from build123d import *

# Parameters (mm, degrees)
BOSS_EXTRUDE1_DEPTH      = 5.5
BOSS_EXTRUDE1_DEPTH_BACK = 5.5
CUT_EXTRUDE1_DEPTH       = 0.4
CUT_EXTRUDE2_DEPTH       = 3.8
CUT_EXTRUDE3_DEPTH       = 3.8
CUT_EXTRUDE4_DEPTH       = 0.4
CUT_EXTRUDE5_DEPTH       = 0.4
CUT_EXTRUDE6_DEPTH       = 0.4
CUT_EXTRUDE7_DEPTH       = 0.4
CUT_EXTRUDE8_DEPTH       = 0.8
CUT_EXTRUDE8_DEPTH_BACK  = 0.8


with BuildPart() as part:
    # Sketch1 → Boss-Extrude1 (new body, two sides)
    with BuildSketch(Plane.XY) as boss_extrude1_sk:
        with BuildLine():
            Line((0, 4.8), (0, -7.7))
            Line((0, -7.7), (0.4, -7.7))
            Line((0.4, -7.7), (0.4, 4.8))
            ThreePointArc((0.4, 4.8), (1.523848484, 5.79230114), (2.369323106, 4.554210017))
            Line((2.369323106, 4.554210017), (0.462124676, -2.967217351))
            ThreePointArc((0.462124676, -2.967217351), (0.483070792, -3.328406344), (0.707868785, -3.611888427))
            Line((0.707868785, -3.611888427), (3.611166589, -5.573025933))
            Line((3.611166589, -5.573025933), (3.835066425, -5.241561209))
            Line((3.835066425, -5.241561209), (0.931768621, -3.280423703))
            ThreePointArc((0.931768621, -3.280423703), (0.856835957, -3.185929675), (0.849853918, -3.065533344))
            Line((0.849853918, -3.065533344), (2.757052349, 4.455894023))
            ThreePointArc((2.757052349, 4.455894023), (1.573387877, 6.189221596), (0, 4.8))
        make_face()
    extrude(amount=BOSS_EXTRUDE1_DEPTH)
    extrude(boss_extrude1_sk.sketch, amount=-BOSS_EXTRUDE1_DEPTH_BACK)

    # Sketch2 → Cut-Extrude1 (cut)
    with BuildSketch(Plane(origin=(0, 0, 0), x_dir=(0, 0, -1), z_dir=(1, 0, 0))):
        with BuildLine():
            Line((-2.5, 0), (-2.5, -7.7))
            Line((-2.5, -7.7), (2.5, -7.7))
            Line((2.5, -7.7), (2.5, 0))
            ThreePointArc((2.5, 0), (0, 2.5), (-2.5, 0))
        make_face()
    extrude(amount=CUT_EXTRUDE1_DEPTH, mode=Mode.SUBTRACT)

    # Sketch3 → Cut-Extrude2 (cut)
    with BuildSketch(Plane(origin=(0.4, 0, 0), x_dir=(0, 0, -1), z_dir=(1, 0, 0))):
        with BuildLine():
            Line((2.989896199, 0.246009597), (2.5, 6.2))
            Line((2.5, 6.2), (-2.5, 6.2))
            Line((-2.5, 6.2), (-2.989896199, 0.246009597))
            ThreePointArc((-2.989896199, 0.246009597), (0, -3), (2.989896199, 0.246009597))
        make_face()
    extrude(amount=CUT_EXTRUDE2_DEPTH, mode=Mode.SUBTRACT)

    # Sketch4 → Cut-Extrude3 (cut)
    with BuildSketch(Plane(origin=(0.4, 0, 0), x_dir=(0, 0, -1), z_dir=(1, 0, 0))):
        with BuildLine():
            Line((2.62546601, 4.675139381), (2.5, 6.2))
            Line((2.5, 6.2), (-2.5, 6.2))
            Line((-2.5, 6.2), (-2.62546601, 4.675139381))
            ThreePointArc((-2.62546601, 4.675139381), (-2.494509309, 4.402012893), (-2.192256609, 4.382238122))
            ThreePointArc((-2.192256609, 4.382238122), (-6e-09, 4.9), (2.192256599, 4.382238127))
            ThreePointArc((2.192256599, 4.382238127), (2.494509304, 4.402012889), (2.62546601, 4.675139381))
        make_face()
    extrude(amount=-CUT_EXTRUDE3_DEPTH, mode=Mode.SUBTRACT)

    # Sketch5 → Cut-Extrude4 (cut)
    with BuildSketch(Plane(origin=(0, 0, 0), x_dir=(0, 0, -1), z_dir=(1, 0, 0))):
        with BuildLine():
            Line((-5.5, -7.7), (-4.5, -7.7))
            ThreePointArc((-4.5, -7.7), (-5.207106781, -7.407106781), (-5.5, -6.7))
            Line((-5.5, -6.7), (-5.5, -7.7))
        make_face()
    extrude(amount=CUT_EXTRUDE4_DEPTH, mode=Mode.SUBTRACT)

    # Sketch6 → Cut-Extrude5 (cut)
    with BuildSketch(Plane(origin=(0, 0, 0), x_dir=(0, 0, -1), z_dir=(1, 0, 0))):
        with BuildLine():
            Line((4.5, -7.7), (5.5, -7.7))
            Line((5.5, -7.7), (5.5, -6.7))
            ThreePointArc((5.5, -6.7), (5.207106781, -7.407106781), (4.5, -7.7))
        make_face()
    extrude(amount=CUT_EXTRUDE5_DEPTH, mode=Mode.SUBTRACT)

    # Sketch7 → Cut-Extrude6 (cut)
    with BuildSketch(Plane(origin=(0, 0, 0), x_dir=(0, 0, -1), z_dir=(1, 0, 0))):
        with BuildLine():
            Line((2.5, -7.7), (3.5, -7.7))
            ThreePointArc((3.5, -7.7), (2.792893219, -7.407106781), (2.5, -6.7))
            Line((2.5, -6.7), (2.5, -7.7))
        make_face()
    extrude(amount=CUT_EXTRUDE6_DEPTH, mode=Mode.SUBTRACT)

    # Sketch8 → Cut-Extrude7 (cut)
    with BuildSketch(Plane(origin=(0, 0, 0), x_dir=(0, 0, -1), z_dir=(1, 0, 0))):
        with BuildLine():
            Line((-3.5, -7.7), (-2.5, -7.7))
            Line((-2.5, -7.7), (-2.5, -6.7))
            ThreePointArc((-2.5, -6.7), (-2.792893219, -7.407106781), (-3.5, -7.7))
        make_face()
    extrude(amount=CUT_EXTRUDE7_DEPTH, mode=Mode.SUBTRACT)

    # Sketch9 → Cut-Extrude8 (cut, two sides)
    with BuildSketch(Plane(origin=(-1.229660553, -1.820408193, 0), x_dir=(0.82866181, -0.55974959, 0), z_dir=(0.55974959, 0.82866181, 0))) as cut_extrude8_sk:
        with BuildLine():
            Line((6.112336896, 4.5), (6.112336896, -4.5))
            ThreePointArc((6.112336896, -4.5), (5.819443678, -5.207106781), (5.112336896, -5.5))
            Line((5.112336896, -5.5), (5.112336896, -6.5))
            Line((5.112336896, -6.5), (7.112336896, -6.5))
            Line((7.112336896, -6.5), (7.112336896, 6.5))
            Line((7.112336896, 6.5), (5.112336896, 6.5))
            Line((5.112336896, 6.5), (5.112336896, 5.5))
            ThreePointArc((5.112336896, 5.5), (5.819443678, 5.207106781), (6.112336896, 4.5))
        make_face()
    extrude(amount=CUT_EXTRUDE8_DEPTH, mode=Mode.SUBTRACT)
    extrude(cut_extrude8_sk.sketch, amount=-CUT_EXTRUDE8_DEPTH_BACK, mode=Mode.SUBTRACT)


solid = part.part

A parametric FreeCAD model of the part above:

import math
import FreeCAD as App
import Part
import Sketcher

V = App.Vector
Q = App.Units.Quantity

doc = App.newDocument("Part")
params = doc.addObject("Spreadsheet::Sheet", "Params")
for row, (alias, value) in enumerate([
    ("sketch1_radius", "1 mm"),
    ("sketch1_radius2", "0.6 mm"),
    ("sketch1_radius3", "0.2 mm"),
    ("sketch1_height", "12.5 mm"),
    ("pad1_length", "5.5 mm"),
    ("pad1_length2", "5.5 mm"),
    ("sketch2_radius", "2.5 mm"),
    ("sketch2_width", "7.7 mm"),
    ("pocket1_length", "0.4 mm"),
    ("sketch3_radius", "3 mm"),
    ("sketch3_height", "5 mm"),
    ("pocket2_length", "3.8 mm"),
    ("sketch4_radius", "0.3 mm"),
    ("sketch4_radius2", "4.9 mm"),
    ("sketch4_height", "5 mm"),
    ("pocket3_length", "3.8 mm"),
    ("sketch5_radius", "1 mm"),
    ("pocket4_length", "0.4 mm"),
    ("sketch6_radius", "1 mm"),
    ("pocket5_length", "0.4 mm"),
    ("sketch7_radius", "1 mm"),
    ("pocket6_length", "0.4 mm"),
    ("sketch8_radius", "1 mm"),
    ("pocket7_length", "0.4 mm"),
    ("sketch9_radius", "1 mm"),
    ("sketch9_width", "2 mm"),
    ("sketch9_height", "9 mm"),
    ("sketch9_height2", "1 mm"),
], start=1):
    params.set(f"A{row}", alias)
    params.set(f"B{row}", "=" + value)
    params.setAlias(f"B{row}", alias)

body = doc.addObject("PartDesign::Body", "Body")

# Sketch on XY plane
sketch1 = body.newObject("Sketcher::SketchObject", "Sketch")
sketch1.AttachmentSupport = (doc.getObject("XY_Plane"), [""])
sketch1.MapMode = "FlatFace"
sketch1.addGeometry([
    Part.LineSegment(V(0, 4.8, 0), V(0, -7.7, 0)),  # 0
    Part.LineSegment(V(0, -7.7, 0), V(0.4, -7.7, 0)),  # 1
    Part.LineSegment(V(0.4, -7.7, 0), V(0.4, 4.8, 0)),  # 2
    Part.ArcOfCircle(Part.Circle(V(1.4, 4.8, 0), V(0, 0, 1), 1), math.radians(-14), math.radians(180)),  # 3
    Part.LineSegment(V(2.37, 4.55, 0), V(0.46, -2.97, 0)),  # 4
    Part.ArcOfCircle(Part.Circle(V(1.04, -3.11, 0), V(0, 0, 1), 0.6), math.radians(166), math.radians(236)),  # 5
    Part.LineSegment(V(0.71, -3.61, 0), V(3.61, -5.57, 0)),  # 6
    Part.LineSegment(V(3.61, -5.57, 0), V(3.84, -5.24, 0)),  # 7
    Part.LineSegment(V(3.84, -5.24, 0), V(0.93, -3.28, 0)),  # 8
    Part.ArcOfCircle(Part.Circle(V(1.04, -3.11, 0), V(0, 0, 1), 0.2), math.radians(166), math.radians(236)),  # 9
    Part.LineSegment(V(0.85, -3.07, 0), V(2.76, 4.46, 0)),  # 10
    Part.ArcOfCircle(Part.Circle(V(1.4, 4.8, 0), V(0, 0, 1), 1.4), math.radians(-14), math.radians(180)),  # 11
], False)
sketch1.addConstraint([
    Sketcher.Constraint("Coincident", 0, 2, 1, 1),
    Sketcher.Constraint("Coincident", 1, 2, 2, 1),
    Sketcher.Constraint("Tangent", 2, 2, 3, 2),
    Sketcher.Constraint("Tangent", 3, 1, 4, 1),
    Sketcher.Constraint("Tangent", 4, 2, 5, 1),
    Sketcher.Constraint("Tangent", 5, 2, 6, 1),
    Sketcher.Constraint("Coincident", 6, 2, 7, 1),
    Sketcher.Constraint("Coincident", 7, 2, 8, 1),
    Sketcher.Constraint("Tangent", 8, 2, 9, 2),
    Sketcher.Constraint("Tangent", 9, 1, 10, 1),
    Sketcher.Constraint("Tangent", 10, 2, 11, 1),
    Sketcher.Constraint("Tangent", 11, 2, 0, 1),
    Sketcher.Constraint("Vertical", 0),
    Sketcher.Constraint("Horizontal", 1),
    Sketcher.Constraint("Vertical", 2),
    Sketcher.Constraint("Coincident", 9, 3, 5, 3),
    Sketcher.Constraint("Coincident", 11, 3, 3, 3),
    Sketcher.Constraint("PointOnObject", 0, 2, -2),
    Sketcher.Constraint("Perpendicular", 6, 7),
    Sketcher.Constraint("Perpendicular", 7, 8),
    Sketcher.Constraint("Parallel", 4, 10),
    Sketcher.Constraint("Radius", 3, Q("1 mm")),
    Sketcher.Constraint("Radius", 5, Q("0.6 mm")),
    Sketcher.Constraint("Radius", 9, Q("0.2 mm")),
    Sketcher.Constraint("DistanceY", 0, 2, 0, 1, Q("12.5 mm")),
    Sketcher.Constraint("DistanceY", -1, 1, 3, 3, Q("4.8 mm")),
    Sketcher.Constraint("DistanceY", 5, 3, 3, 1, Q("7.668901 mm")),
    Sketcher.Constraint("DistanceX", 4, 2, 3, 1, Q("1.907198 mm")),
    Sketcher.Constraint("DistanceX", 6, 2, 7, 2, Q("0.2239 mm")),
    Sketcher.Constraint("DistanceY", 7, 2, -1, 1, Q("5.241561 mm")),
])
sketch1.setExpression("Constraints[21]", "Params.sketch1_radius")
sketch1.setExpression("Constraints[22]", "Params.sketch1_radius2")
sketch1.setExpression("Constraints[23]", "Params.sketch1_radius3")
sketch1.setExpression("Constraints[24]", "Params.sketch1_height")
pad1 = body.newObject("PartDesign::Pad", "Pad")
pad1.Profile = sketch1
pad1.Type = "TwoLengths"
pad1.setExpression("Length", "Params.pad1_length")
pad1.setExpression("Length2", "Params.pad1_length2")

# Sketch on YZ plane
sketch2 = body.newObject("Sketcher::SketchObject", "Sketch001")
sketch2.AttachmentSupport = (doc.getObject("YZ_Plane"), [""])
sketch2.MapMode = "FlatFace"
sketch2.addGeometry([
    Part.LineSegment(V(0, 2.5, 0), V(-7.7, 2.5, 0)),
    Part.LineSegment(V(-7.7, 2.5, 0), V(-7.7, -2.5, 0)),
    Part.LineSegment(V(-7.7, -2.5, 0), V(0, -2.5, 0)),
    Part.ArcOfCircle(Part.Circle(V(0, 0, 0), V(0, 0, 1), 2.5), math.radians(-90), math.radians(90)),
], False)
sketch2.addConstraint([
    Sketcher.Constraint("Coincident", 0, 2, 1, 1),
    Sketcher.Constraint("Coincident", 1, 2, 2, 1),
    Sketcher.Constraint("Tangent", 2, 2, 3, 1),
    Sketcher.Constraint("Tangent", 3, 2, 0, 1),
    Sketcher.Constraint("Horizontal", 0),
    Sketcher.Constraint("Vertical", 1),
    Sketcher.Constraint("Horizontal", 2),
    Sketcher.Constraint("Coincident", 3, 3, -1, 1),
    Sketcher.Constraint("Radius", 3, Q("2.5 mm")),
    Sketcher.Constraint("DistanceX", 0, 2, 0, 1, Q("7.7 mm")),
])
sketch2.setExpression("Constraints[8]", "Params.sketch2_radius")
sketch2.setExpression("Constraints[9]", "Params.sketch2_width")
pocket1 = body.newObject("PartDesign::Pocket", "Pocket")
pocket1.Profile = sketch2
pocket1.setExpression("Length", "Params.pocket1_length")
pocket1.Reversed = True

# Sketch on YZ plane
sketch3 = body.newObject("Sketcher::SketchObject", "Sketch002")
sketch3.AttachmentSupport = (doc.getObject("YZ_Plane"), [""])
sketch3.MapMode = "FlatFace"
sketch3.AttachmentOffset = App.Placement(V(0, 0, 0.4), App.Rotation())
sketch3.addGeometry([
    Part.LineSegment(V(0.2, -3, 0), V(6.2, -2.5, 0)),
    Part.LineSegment(V(6.2, -2.5, 0), V(6.2, 2.5, 0)),
    Part.LineSegment(V(6.2, 2.5, 0), V(0.2, 3, 0)),
    Part.ArcOfCircle(Part.Circle(V(0, 0, 0), V(0, 0, 1), 3), math.radians(85), math.radians(275)),
], False)
sketch3.addConstraint([
    Sketcher.Constraint("Coincident", 0, 2, 1, 1),
    Sketcher.Constraint("Coincident", 1, 2, 2, 1),
    Sketcher.Constraint("Tangent", 2, 2, 3, 1),
    Sketcher.Constraint("Tangent", 3, 2, 0, 1),
    Sketcher.Constraint("Vertical", 1),
    Sketcher.Constraint("Coincident", 3, 3, -1, 1),
    Sketcher.Constraint("Vertical", 2, 2, 3, 2),
    Sketcher.Constraint("Radius", 3, Q("3 mm")),
    Sketcher.Constraint("DistanceY", 1, 1, 1, 2, Q("5 mm")),
    Sketcher.Constraint("DistanceX", -1, 1, 0, 2, Q("6.2 mm")),
])
sketch3.setExpression("Constraints[7]", "Params.sketch3_radius")
sketch3.setExpression("Constraints[8]", "Params.sketch3_height")
pocket2 = body.newObject("PartDesign::Pocket", "Pocket001")
pocket2.Profile = sketch3
pocket2.setExpression("Length", "Params.pocket2_length")
pocket2.Reversed = True

# Sketch on YZ plane
sketch4 = body.newObject("Sketcher::SketchObject", "Sketch003")
sketch4.AttachmentSupport = (doc.getObject("YZ_Plane"), [""])
sketch4.MapMode = "FlatFace"
sketch4.AttachmentOffset = App.Placement(V(0, 0, 0.4), App.Rotation())
sketch4.addGeometry([
    Part.LineSegment(V(4.68, -2.63, 0), V(6.2, -2.5, 0)),  # 0
    Part.LineSegment(V(6.2, -2.5, 0), V(6.2, 2.5, 0)),  # 1
    Part.LineSegment(V(6.2, 2.5, 0), V(4.68, 2.63, 0)),  # 2
    Part.ArcOfCircle(Part.Circle(V(4.65, 2.33, 0), V(0, 0, 1), 0.3), math.radians(85), math.radians(207)),  # 3
    Part.ArcOfCircle(Part.Circle(V(0, 0, 0), V(0, 0, 1), 4.9), math.radians(-27), math.radians(27)),  # 4
    Part.ArcOfCircle(Part.Circle(V(4.65, -2.33, 0), V(0, 0, 1), 0.3), math.radians(153), math.radians(275)),  # 5
], False)
sketch4.addConstraint([
    Sketcher.Constraint("Coincident", 0, 2, 1, 1),
    Sketcher.Constraint("Coincident", 1, 2, 2, 1),
    Sketcher.Constraint("Tangent", 2, 2, 3, 1),
    Sketcher.Constraint("Tangent", 3, 2, 4, 2),
    Sketcher.Constraint("Tangent", 4, 1, 5, 1),
    Sketcher.Constraint("Tangent", 5, 2, 0, 1),
    Sketcher.Constraint("Vertical", 1),
    Sketcher.Constraint("Coincident", 4, 3, -1, 1),
    Sketcher.Constraint("Equal", 3, 5),
    Sketcher.Constraint("Symmetric", 2, 2, 5, 2, -1),
    Sketcher.Constraint("Radius", 3, Q("0.3 mm")),
    Sketcher.Constraint("Radius", 4, Q("4.9 mm")),
    Sketcher.Constraint("DistanceY", 1, 1, 1, 2, Q("5 mm")),
    Sketcher.Constraint("DistanceX", -1, 1, 0, 2, Q("6.2 mm")),
    Sketcher.Constraint("DistanceX", 3, 3, 2, 2, Q("0.024601 mm")),
])
sketch4.setExpression("Constraints[10]", "Params.sketch4_radius")
sketch4.setExpression("Constraints[11]", "Params.sketch4_radius2")
sketch4.setExpression("Constraints[12]", "Params.sketch4_height")
pocket3 = body.newObject("PartDesign::Pocket", "Pocket002")
pocket3.Profile = sketch4
pocket3.setExpression("Length", "Params.pocket3_length")

# Sketch on YZ plane
sketch5 = body.newObject("Sketcher::SketchObject", "Sketch004")
sketch5.AttachmentSupport = (doc.getObject("YZ_Plane"), [""])
sketch5.MapMode = "FlatFace"
sketch5.addGeometry([
    Part.LineSegment(V(-7.7, 5.5, 0), V(-7.7, 4.5, 0)),
    Part.ArcOfCircle(Part.Circle(V(-6.7, 4.5, 0), V(0, 0, 1), 1), math.radians(90), math.radians(180)),
    Part.LineSegment(V(-6.7, 5.5, 0), V(-7.7, 5.5, 0)),
], False)
sketch5.addConstraint([
    Sketcher.Constraint("Tangent", 0, 2, 1, 2),
    Sketcher.Constraint("Tangent", 1, 1, 2, 1),
    Sketcher.Constraint("Coincident", 2, 2, 0, 1),
    Sketcher.Constraint("Vertical", 0),
    Sketcher.Constraint("Horizontal", 2),
    Sketcher.Constraint("Radius", 1, Q("1 mm")),
    Sketcher.Constraint("DistanceX", 1, 3, -1, 1, Q("6.7 mm")),
    Sketcher.Constraint("DistanceY", -1, 1, 1, 3, Q("4.5 mm")),
])
sketch5.setExpression("Constraints[5]", "Params.sketch5_radius")
pocket4 = body.newObject("PartDesign::Pocket", "Pocket003")
pocket4.Profile = sketch5
pocket4.setExpression("Length", "Params.pocket4_length")
pocket4.Reversed = True

# Sketch on YZ plane
sketch6 = body.newObject("Sketcher::SketchObject", "Sketch005")
sketch6.AttachmentSupport = (doc.getObject("YZ_Plane"), [""])
sketch6.MapMode = "FlatFace"
sketch6.addGeometry([
    Part.LineSegment(V(-7.7, -4.5, 0), V(-7.7, -5.5, 0)),
    Part.LineSegment(V(-7.7, -5.5, 0), V(-6.7, -5.5, 0)),
    Part.ArcOfCircle(Part.Circle(V(-6.7, -4.5, 0), V(0, 0, 1), 1), math.radians(-180), math.radians(-90)),
], False)
sketch6.addConstraint([
    Sketcher.Constraint("Coincident", 0, 2, 1, 1),
    Sketcher.Constraint("Tangent", 1, 2, 2, 2),
    Sketcher.Constraint("Tangent", 2, 1, 0, 1),
    Sketcher.Constraint("Vertical", 0),
    Sketcher.Constraint("Horizontal", 1),
    Sketcher.Constraint("Radius", 2, Q("1 mm")),
    Sketcher.Constraint("DistanceX", 2, 3, -1, 1, Q("6.7 mm")),
    Sketcher.Constraint("DistanceY", 2, 3, -1, 1, Q("4.5 mm")),
])
sketch6.setExpression("Constraints[5]", "Params.sketch6_radius")
pocket5 = body.newObject("PartDesign::Pocket", "Pocket004")
pocket5.Profile = sketch6
pocket5.setExpression("Length", "Params.pocket5_length")
pocket5.Reversed = True

# Sketch on YZ plane
sketch7 = body.newObject("Sketcher::SketchObject", "Sketch006")
sketch7.AttachmentSupport = (doc.getObject("YZ_Plane"), [""])
sketch7.MapMode = "FlatFace"
sketch7.addGeometry([
    Part.LineSegment(V(-7.7, -2.5, 0), V(-7.7, -3.5, 0)),
    Part.ArcOfCircle(Part.Circle(V(-6.7, -3.5, 0), V(0, 0, 1), 1), math.radians(90), math.radians(180)),
    Part.LineSegment(V(-6.7, -2.5, 0), V(-7.7, -2.5, 0)),
], False)
sketch7.addConstraint([
    Sketcher.Constraint("Tangent", 0, 2, 1, 2),
    Sketcher.Constraint("Tangent", 1, 1, 2, 1),
    Sketcher.Constraint("Coincident", 2, 2, 0, 1),
    Sketcher.Constraint("Vertical", 0),
    Sketcher.Constraint("Horizontal", 2),
    Sketcher.Constraint("Radius", 1, Q("1 mm")),
    Sketcher.Constraint("DistanceX", 1, 3, -1, 1, Q("6.7 mm")),
    Sketcher.Constraint("DistanceY", 1, 3, -1, 1, Q("3.5 mm")),
])
sketch7.setExpression("Constraints[5]", "Params.sketch7_radius")
pocket6 = body.newObject("PartDesign::Pocket", "Pocket005")
pocket6.Profile = sketch7
pocket6.setExpression("Length", "Params.pocket6_length")
pocket6.Reversed = True

# Sketch on YZ plane
sketch8 = body.newObject("Sketcher::SketchObject", "Sketch007")
sketch8.AttachmentSupport = (doc.getObject("YZ_Plane"), [""])
sketch8.MapMode = "FlatFace"
sketch8.addGeometry([
    Part.LineSegment(V(-7.7, 3.5, 0), V(-7.7, 2.5, 0)),
    Part.LineSegment(V(-7.7, 2.5, 0), V(-6.7, 2.5, 0)),
    Part.ArcOfCircle(Part.Circle(V(-6.7, 3.5, 0), V(0, 0, 1), 1), math.radians(-180), math.radians(-90)),
], False)
sketch8.addConstraint([
    Sketcher.Constraint("Coincident", 0, 2, 1, 1),
    Sketcher.Constraint("Tangent", 1, 2, 2, 2),
    Sketcher.Constraint("Tangent", 2, 1, 0, 1),
    Sketcher.Constraint("Vertical", 0),
    Sketcher.Constraint("Horizontal", 1),
    Sketcher.Constraint("Radius", 2, Q("1 mm")),
    Sketcher.Constraint("DistanceX", 2, 3, -1, 1, Q("6.7 mm")),
    Sketcher.Constraint("DistanceY", -1, 1, 2, 3, Q("3.5 mm")),
])
sketch8.setExpression("Constraints[5]", "Params.sketch8_radius")
pocket7 = body.newObject("PartDesign::Pocket", "Pocket006")
pocket7.Profile = sketch8
pocket7.setExpression("Length", "Params.pocket7_length")
pocket7.Reversed = True

# Sketch on an angled plane
sketch9 = body.newObject("Sketcher::SketchObject", "Sketch008")
sketch9.Placement = App.Placement(V(-1.229661, -1.820408, 0), App.Rotation(V(0.82866181, -0.55974959, 0), V(0, 0, -0.999999999), V(0.55974959, 0.82866181, 0), "ZXY"))
sketch9.addGeometry([
    Part.LineSegment(V(6.1, 4.5, 0), V(6.1, -4.5, 0)),  # 0
    Part.ArcOfCircle(Part.Circle(V(5.1, -4.5, 0), V(0, 0, 1), 1), math.radians(-90), math.radians(0)),  # 1
    Part.LineSegment(V(5.1, -5.5, 0), V(5.1, -6.5, 0)),  # 2
    Part.LineSegment(V(5.1, -6.5, 0), V(7.1, -6.5, 0)),  # 3
    Part.LineSegment(V(7.1, -6.5, 0), V(7.1, 6.5, 0)),  # 4
    Part.LineSegment(V(7.1, 6.5, 0), V(5.1, 6.5, 0)),  # 5
    Part.LineSegment(V(5.1, 6.5, 0), V(5.1, 5.5, 0)),  # 6
    Part.ArcOfCircle(Part.Circle(V(5.1, 4.5, 0), V(0, 0, 1), 1), math.radians(0), math.radians(90)),  # 7
], False)
sketch9.addConstraint([
    Sketcher.Constraint("Tangent", 0, 2, 1, 2),
    Sketcher.Constraint("Coincident", 1, 1, 2, 1),
    Sketcher.Constraint("Coincident", 2, 2, 3, 1),
    Sketcher.Constraint("Coincident", 3, 2, 4, 1),
    Sketcher.Constraint("Coincident", 4, 2, 5, 1),
    Sketcher.Constraint("Coincident", 5, 2, 6, 1),
    Sketcher.Constraint("Coincident", 6, 2, 7, 2),
    Sketcher.Constraint("Tangent", 7, 1, 0, 1),
    Sketcher.Constraint("Vertical", 0),
    Sketcher.Constraint("Vertical", 2),
    Sketcher.Constraint("Horizontal", 3),
    Sketcher.Constraint("Vertical", 4),
    Sketcher.Constraint("Horizontal", 5),
    Sketcher.Constraint("Vertical", 6),
    Sketcher.Constraint("Equal", 1, 7),
    Sketcher.Constraint("Symmetric", 2, 2, 5, 2, -1),
    Sketcher.Constraint("Vertical", 7, 3, 1, 1),
    Sketcher.Constraint("Equal", 2, 6),
    Sketcher.Constraint("Radius", 1, Q("1 mm")),
    Sketcher.Constraint("DistanceX", 3, 1, 3, 2, Q("2 mm")),
    Sketcher.Constraint("DistanceY", 0, 2, 0, 1, Q("9 mm")),
    Sketcher.Constraint("DistanceY", 2, 2, 2, 1, Q("1 mm")),
    Sketcher.Constraint("DistanceX", -1, 1, 1, 3, Q("5.112337 mm")),
])
sketch9.setExpression("Constraints[18]", "Params.sketch9_radius")
sketch9.setExpression("Constraints[19]", "Params.sketch9_width")
sketch9.setExpression("Constraints[20]", "Params.sketch9_height")
sketch9.setExpression("Constraints[21]", "Params.sketch9_height2")
pocket8 = body.newObject("PartDesign::Pocket", "Pocket007")
pocket8.Profile = sketch9
pocket8.Type = "ThroughAll"
pocket8.Midplane = True

doc.recompute()
